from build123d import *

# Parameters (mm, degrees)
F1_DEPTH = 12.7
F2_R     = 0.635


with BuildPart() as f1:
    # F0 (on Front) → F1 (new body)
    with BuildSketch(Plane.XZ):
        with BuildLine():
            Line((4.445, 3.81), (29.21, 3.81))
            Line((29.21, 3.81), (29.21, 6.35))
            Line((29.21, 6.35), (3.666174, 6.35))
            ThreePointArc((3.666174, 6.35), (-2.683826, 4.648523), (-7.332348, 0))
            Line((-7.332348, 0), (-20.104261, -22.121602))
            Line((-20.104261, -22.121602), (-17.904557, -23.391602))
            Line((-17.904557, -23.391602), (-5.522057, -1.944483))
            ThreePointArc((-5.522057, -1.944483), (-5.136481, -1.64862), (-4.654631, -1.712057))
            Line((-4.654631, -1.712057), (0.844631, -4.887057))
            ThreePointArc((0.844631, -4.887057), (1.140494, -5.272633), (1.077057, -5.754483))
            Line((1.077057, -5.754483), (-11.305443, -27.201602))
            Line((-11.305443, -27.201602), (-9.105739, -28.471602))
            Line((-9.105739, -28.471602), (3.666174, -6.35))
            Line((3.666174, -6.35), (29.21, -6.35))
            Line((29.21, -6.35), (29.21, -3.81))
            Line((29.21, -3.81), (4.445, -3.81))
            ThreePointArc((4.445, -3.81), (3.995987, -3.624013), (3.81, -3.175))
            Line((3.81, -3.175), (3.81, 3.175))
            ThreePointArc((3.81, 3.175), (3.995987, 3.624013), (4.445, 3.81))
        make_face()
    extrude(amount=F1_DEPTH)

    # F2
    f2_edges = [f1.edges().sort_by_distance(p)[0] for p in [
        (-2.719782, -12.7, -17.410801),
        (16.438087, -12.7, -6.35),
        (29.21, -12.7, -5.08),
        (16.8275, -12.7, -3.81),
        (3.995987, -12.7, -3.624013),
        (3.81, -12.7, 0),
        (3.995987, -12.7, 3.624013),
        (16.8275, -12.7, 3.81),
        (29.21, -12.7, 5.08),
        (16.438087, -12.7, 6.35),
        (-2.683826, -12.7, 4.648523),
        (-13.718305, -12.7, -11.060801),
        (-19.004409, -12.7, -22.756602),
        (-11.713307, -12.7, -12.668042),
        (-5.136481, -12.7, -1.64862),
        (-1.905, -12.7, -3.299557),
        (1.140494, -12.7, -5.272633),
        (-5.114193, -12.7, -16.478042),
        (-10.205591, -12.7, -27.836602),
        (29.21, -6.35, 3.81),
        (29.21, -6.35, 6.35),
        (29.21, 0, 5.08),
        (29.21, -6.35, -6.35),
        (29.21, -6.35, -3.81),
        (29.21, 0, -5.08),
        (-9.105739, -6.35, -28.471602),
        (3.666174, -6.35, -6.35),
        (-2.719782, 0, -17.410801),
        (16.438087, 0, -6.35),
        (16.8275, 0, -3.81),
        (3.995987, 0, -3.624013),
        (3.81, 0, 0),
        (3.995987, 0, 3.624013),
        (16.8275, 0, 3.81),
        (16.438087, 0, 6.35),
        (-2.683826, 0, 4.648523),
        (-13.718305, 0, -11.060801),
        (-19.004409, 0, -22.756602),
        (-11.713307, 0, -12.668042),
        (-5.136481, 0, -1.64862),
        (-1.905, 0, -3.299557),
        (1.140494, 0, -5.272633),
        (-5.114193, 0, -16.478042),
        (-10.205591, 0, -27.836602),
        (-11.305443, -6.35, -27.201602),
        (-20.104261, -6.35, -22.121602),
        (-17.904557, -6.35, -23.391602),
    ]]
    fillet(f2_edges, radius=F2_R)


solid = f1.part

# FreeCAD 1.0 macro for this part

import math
import FreeCAD as App
import Part
import Sketcher
from FreeCAD import Vector
Q = App.Units.Quantity

doc = App.newDocument("Part")
body = doc.addObject("PartDesign::Body", "Body")

# Sketch on XZ plane
sketch1 = body.newObject("Sketcher::SketchObject", "Sketch")
sketch1.AttachmentSupport = (doc.getObject("XZ_Plane"), [""])
sketch1.MapMode = "FlatFace"
sketch1.addGeometry(Part.LineSegment(Vector(4.4, 3.8, 0), Vector(29.2, 3.8, 0)), False)
sketch1.addGeometry(Part.LineSegment(Vector(29.2, 3.8, 0), Vector(29.2, 6.3, 0)), False)
sketch1.addGeometry(Part.LineSegment(Vector(29.2, 6.3, 0), Vector(3.7, 6.3, 0)), False)
sketch1.addGeometry(Part.ArcOfCircle(Part.Circle(Vector(3.7, -6.3, 0), Vector(0, 0, 1), 12.7), math.radians(90), math.radians(150)), False)
sketch1.addGeometry(Part.LineSegment(Vector(-7.3, 0, 0), Vector(-20.1, -22.1, 0)), False)
sketch1.addGeometry(Part.LineSegment(Vector(-20.1, -22.1, 0), Vector(-17.9, -23.4, 0)), False)
sketch1.addGeometry(Part.LineSegment(Vector(-17.9, -23.4, 0), Vector(-5.5, -1.9, 0)), False)
sketch1.addGeometry(Part.ArcOfCircle(Part.Circle(Vector(-5, -2.3, 0), Vector(0, 0, 1), 0.6), math.radians(60), math.radians(150)), False)
sketch1.addGeometry(Part.LineSegment(Vector(-4.7, -1.7, 0), Vector(0.8, -4.9, 0)), False)
sketch1.addGeometry(Part.ArcOfCircle(Part.Circle(Vector(0.5, -5.4, 0), Vector(0, 0, 1), 0.6), math.radians(-30), math.radians(60)), False)
sketch1.addGeometry(Part.LineSegment(Vector(1.1, -5.8, 0), Vector(-11.3, -27.2, 0)), False)
sketch1.addGeometry(Part.LineSegment(Vector(-11.3, -27.2, 0), Vector(-9.1, -28.5, 0)), False)
sketch1.addGeometry(Part.LineSegment(Vector(-9.1, -28.5, 0), Vector(3.7, -6.3, 0)), False)
sketch1.addGeometry(Part.LineSegment(Vector(3.7, -6.3, 0), Vector(29.2, -6.3, 0)), False)
sketch1.addGeometry(Part.LineSegment(Vector(29.2, -6.3, 0), Vector(29.2, -3.8, 0)), False)
sketch1.addGeometry(Part.LineSegment(Vector(29.2, -3.8, 0), Vector(4.4, -3.8, 0)), False)
sketch1.addGeometry(Part.ArcOfCircle(Part.Circle(Vector(4.4, -3.2, 0), Vector(0, 0, 1), 0.6), math.radians(180), math.radians(270)), False)
sketch1.addGeometry(Part.LineSegment(Vector(3.8, -3.2, 0), Vector(3.8, 3.2, 0)), False)
sketch1.addGeometry(Part.ArcOfCircle(Part.Circle(Vector(4.4, 3.2, 0), Vector(0, 0, 1), 0.6), math.radians(90), math.radians(180)), False)
sketch1.addConstraint(Sketcher.Constraint("Coincident", 0, 2, 1, 1))
sketch1.addConstraint(Sketcher.Constraint("Coincident", 1, 2, 2, 1))
sketch1.addConstraint(Sketcher.Constraint("Tangent", 2, 2, 3, 1))
sketch1.addConstraint(Sketcher.Constraint("Tangent", 3, 2, 4, 1))
sketch1.addConstraint(Sketcher.Constraint("Coincident", 4, 2, 5, 1))
sketch1.addConstraint(Sketcher.Constraint("Coincident", 5, 2, 6, 1))
sketch1.addConstraint(Sketcher.Constraint("Tangent", 6, 2, 7, 2))
sketch1.addConstraint(Sketcher.Constraint("Tangent", 7, 1, 8, 1))
sketch1.addConstraint(Sketcher.Constraint("Tangent", 8, 2, 9, 2))
sketch1.addConstraint(Sketcher.Constraint("Tangent", 9, 1, 10, 1))
sketch1.addConstraint(Sketcher.Constraint("Coincident", 10, 2, 11, 1))
sketch1.addConstraint(Sketcher.Constraint("Coincident", 11, 2, 12, 1))
sketch1.addConstraint(Sketcher.Constraint("Coincident", 12, 2, 13, 1))
sketch1.addConstraint(Sketcher.Constraint("Coincident", 13, 2, 14, 1))
sketch1.addConstraint(Sketcher.Constraint("Coincident", 14, 2, 15, 1))
sketch1.addConstraint(Sketcher.Constraint("Tangent", 15, 2, 16, 2))
sketch1.addConstraint(Sketcher.Constraint("Tangent", 16, 1, 17, 1))
sketch1.addConstraint(Sketcher.Constraint("Tangent", 17, 2, 18, 2))
sketch1.addConstraint(Sketcher.Constraint("Tangent", 18, 1, 0, 1))
sketch1.addConstraint(Sketcher.Constraint("Horizontal", 0))
sketch1.addConstraint(Sketcher.Constraint("Vertical", 1))
sketch1.addConstraint(Sketcher.Constraint("Horizontal", 2))
sketch1.addConstraint(Sketcher.Constraint("Horizontal", 13))
sketch1.addConstraint(Sketcher.Constraint("Vertical", 14))
sketch1.addConstraint(Sketcher.Constraint("Horizontal", 15))
sketch1.addConstraint(Sketcher.Constraint("Vertical", 17))
sketch1.addConstraint(Sketcher.Constraint("Coincident", 12, 2, 3, 3))
sketch1.addConstraint(Sketcher.Constraint("Equal", 7, 9))
sketch1.addConstraint(Sketcher.Constraint("Equal", 9, 16))
sketch1.addConstraint(Sketcher.Constraint("Equal", 16, 18))
sketch1.addConstraint(Sketcher.Constraint("Symmetric", 1, 2, 13, 2, -1))
sketch1.addConstraint(Sketcher.Constraint("PointOnObject", 3, 2, -1))
sketch1.addConstraint(Sketcher.Constraint("Perpendicular", 4, 5))
sketch1.addConstraint(Sketcher.Constraint("Perpendicular", 5, 6))
sketch1.addConstraint(Sketcher.Constraint("Perpendicular", 6, 8))
sketch1.addConstraint(Sketcher.Constraint("Perpendicular", 8, 10))
sketch1.addConstraint(Sketcher.Constraint("Perpendicular", 10, 11))
sketch1.addConstraint(Sketcher.Constraint("Perpendicular", 11, 12))
sketch1.addConstraint(Sketcher.Constraint("Equal", 1, 14))
sketch1.addConstraint(Sketcher.Constraint("Equal", 6, 10))
sketch1.addConstraint(Sketcher.Constraint("Equal", 5, 11))
sketch1.addConstraint(Sketcher.Constraint("Radius", 3, Q("0.4999998 in")))
sketch1.addConstraint(Sketcher.Constraint("DistanceY", 1, 1, 1, 2, Q("0.1 in")))
sketch1.addConstraint(Sketcher.Constraint("Radius", 7, Q("0.025 in")))
sketch1.addConstraint(Sketcher.Constraint("Distance", 5, Q("0.1 in")))
sketch1.addConstraint(Sketcher.Constraint("DistanceX", 0, 1, 0, 2, Q("0.975 in")))
sketch1.addConstraint(Sketcher.Constraint("DistanceX", -1, 1, 0, 2, Q("1.15 in")))
sketch1.addConstraint(Sketcher.Constraint("Distance", 6, Q("0.975 in")))
sketch1.addConstraint(Sketcher.Constraint("DistanceY", 4, 2, -1, 1, Q("22.121602 mm")))
sketch1.addConstraint(Sketcher.Constraint("DistanceX", 2, 2, 2, 1, Q("25.543826 mm")))
pad1 = body.newObject("PartDesign::Pad", "Pad")
pad1.Profile = sketch1
pad1.Length = Q("0.5 in")
doc.recompute()

fillet = body.newObject("PartDesign::Fillet", "Fillet")
fillet.Base = (pad1, ["Edge1"])
fillet.UseAllEdges = True
fillet.Radius = Q("0.025 in")

doc.recompute()
